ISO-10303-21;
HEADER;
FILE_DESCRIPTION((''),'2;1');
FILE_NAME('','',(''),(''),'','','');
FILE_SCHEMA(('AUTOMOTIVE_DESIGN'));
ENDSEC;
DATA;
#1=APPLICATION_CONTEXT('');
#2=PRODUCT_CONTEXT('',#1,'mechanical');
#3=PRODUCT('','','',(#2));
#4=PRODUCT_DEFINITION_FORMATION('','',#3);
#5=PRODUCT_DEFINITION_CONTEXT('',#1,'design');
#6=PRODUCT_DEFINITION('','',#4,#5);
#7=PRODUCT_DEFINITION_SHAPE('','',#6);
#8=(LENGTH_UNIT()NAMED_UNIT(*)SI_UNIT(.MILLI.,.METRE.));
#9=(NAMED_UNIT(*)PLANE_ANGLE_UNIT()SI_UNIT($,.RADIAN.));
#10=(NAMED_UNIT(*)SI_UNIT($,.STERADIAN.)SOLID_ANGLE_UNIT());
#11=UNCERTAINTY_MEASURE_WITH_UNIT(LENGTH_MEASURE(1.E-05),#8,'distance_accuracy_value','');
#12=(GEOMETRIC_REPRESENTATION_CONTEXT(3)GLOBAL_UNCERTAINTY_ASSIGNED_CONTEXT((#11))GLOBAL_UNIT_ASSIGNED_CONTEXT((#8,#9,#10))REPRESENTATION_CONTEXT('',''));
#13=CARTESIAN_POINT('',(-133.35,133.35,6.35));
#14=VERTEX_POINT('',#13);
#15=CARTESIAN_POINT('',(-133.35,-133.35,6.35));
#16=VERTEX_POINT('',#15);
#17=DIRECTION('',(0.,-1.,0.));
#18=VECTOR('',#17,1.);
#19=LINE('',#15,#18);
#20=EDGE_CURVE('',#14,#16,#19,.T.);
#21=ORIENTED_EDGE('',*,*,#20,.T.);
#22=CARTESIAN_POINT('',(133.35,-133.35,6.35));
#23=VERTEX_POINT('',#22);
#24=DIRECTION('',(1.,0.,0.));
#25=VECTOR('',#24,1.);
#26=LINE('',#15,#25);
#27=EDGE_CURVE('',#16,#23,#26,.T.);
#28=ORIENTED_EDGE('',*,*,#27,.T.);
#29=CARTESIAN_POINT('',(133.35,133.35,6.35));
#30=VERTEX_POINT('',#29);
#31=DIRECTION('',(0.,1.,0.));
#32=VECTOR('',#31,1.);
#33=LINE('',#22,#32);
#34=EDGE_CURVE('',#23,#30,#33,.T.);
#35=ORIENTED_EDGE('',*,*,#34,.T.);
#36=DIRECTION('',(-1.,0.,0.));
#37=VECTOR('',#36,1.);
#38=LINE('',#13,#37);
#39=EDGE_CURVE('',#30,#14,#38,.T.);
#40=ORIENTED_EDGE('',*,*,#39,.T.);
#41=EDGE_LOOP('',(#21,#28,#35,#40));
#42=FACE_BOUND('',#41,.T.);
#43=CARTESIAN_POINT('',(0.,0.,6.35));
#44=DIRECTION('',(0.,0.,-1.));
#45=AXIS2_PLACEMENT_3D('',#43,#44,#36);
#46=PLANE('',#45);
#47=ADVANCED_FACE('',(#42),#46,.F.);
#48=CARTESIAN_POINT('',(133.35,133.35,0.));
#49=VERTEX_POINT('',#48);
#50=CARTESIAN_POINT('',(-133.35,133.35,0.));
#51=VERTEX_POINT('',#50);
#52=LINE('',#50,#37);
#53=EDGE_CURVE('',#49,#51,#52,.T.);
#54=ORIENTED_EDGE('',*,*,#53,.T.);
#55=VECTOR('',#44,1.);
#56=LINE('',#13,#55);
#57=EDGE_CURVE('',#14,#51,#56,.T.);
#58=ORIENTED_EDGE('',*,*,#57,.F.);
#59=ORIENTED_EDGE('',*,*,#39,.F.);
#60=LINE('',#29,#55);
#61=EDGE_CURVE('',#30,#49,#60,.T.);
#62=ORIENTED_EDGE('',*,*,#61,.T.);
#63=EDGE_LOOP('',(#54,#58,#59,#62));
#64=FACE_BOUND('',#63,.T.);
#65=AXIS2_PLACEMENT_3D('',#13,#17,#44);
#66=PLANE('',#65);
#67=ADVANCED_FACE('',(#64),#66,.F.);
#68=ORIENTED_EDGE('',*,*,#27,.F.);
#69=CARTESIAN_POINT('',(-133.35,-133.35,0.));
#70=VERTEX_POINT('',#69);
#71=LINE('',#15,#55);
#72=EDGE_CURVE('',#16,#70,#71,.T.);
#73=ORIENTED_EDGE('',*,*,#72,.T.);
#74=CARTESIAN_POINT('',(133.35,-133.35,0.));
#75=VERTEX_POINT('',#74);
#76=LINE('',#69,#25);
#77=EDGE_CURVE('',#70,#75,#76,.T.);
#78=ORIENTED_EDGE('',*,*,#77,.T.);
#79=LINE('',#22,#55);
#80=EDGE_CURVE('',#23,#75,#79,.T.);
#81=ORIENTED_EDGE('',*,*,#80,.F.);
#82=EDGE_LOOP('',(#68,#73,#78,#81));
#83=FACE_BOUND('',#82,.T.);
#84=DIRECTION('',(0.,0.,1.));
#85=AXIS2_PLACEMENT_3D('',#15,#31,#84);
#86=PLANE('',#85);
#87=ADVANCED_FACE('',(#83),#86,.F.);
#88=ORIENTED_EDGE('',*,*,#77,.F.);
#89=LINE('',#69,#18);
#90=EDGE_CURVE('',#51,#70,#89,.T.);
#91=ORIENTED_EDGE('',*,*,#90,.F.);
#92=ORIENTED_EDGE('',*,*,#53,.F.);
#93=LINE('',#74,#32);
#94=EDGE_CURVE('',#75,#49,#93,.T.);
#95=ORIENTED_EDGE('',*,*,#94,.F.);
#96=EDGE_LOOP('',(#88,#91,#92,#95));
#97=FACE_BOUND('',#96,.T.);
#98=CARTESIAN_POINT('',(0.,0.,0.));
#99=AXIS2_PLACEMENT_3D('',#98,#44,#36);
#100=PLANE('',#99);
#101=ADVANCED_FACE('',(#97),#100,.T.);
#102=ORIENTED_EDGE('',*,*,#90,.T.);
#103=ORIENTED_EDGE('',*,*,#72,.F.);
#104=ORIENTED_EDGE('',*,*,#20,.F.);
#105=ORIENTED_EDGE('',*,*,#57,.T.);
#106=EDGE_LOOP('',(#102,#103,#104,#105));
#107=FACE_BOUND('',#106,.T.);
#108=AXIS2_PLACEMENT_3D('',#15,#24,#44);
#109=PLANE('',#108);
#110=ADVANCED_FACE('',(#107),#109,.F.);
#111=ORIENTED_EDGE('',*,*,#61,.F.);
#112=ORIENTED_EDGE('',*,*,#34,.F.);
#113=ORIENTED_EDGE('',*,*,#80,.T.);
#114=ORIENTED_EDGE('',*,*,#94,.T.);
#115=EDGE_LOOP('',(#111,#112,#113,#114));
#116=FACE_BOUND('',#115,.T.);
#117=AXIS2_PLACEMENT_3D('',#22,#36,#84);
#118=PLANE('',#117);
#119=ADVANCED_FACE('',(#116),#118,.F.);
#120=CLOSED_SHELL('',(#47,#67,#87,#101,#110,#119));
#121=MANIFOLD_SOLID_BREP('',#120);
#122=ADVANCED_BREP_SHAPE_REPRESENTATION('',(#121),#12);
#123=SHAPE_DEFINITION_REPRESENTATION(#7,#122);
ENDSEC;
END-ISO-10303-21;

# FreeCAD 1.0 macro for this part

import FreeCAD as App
import Part
import Sketcher

V = App.Vector
Q = App.Units.Quantity


def add_polygon(sketch, points):
    """Adds a closed chain of lines whose ends are joined by coincident constraints."""
    first, n = sketch.GeometryCount, len(points)
    for a, b in zip(points, points[1:] + points[:1]):
        sketch.addGeometry(Part.LineSegment(App.Vector(*a, 0), App.Vector(*b, 0)), False)
    for i in range(n):
        sketch.addConstraint(Sketcher.Constraint("Coincident", first + i, 2, first + (i + 1) % n, 1))

doc = App.newDocument("Part")
body = doc.addObject("PartDesign::Body", "Body")

sketch1 = body.newObject("Sketcher::SketchObject", "Sketch")
sketch1.AttachmentSupport = (doc.getObject("XY_Plane"), [""])
sketch1.MapMode = "FlatFace"
add_polygon(sketch1, [(-133, 133), (-133, -133), (133, -133), (133, 133)])
sketch1.addConstraint([
    Sketcher.Constraint("Vertical", 0),
    Sketcher.Constraint("Horizontal", 1),
    Sketcher.Constraint("Vertical", 2),
    Sketcher.Constraint("Horizontal", 3),
    Sketcher.Constraint("Symmetric", 0, 2, 2, 2, -1, 1),
    Sketcher.Constraint("Equal", 3, 0),
    Sketcher.Constraint("DistanceX", 1, 1, 1, 2, Q("10.5 in")),
])
pad1 = body.newObject("PartDesign::Pad", "Pad")
pad1.Profile = sketch1
pad1.Length = Q("0.25 in")

doc.recompute()
